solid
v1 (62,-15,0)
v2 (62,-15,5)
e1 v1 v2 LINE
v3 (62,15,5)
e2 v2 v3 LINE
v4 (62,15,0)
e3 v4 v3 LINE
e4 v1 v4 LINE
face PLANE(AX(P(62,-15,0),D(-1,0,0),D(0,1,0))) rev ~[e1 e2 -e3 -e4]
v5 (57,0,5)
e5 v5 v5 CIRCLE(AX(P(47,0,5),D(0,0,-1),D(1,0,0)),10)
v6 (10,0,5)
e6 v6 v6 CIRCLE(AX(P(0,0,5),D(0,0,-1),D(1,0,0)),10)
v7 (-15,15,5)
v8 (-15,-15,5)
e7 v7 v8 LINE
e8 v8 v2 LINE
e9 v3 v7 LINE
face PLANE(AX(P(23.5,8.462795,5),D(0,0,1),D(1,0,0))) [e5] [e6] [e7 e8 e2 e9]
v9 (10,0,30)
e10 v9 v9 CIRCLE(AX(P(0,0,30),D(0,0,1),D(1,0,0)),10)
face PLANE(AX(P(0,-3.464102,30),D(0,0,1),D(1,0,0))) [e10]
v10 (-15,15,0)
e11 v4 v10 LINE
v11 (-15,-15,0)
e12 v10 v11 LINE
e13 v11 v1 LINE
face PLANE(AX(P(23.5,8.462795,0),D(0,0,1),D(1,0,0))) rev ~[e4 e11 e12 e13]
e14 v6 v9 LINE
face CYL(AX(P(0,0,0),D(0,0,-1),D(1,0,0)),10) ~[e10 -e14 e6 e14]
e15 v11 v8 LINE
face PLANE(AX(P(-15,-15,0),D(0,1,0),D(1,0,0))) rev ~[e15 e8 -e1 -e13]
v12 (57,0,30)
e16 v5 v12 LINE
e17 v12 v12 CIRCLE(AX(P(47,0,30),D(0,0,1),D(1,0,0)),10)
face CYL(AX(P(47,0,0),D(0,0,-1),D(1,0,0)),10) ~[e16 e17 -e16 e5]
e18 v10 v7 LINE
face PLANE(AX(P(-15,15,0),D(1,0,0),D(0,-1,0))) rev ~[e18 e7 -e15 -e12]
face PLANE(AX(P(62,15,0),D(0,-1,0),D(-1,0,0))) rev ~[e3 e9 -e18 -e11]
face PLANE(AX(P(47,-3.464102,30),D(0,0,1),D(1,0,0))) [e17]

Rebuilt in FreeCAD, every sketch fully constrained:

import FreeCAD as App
import Part
import Sketcher

V = App.Vector
Q = App.Units.Quantity

doc = App.newDocument("Part")
body = doc.addObject("PartDesign::Body", "Body")

sketch1 = body.newObject("Sketcher::SketchObject", "Sketch")
sketch1.AttachmentSupport = (doc.getObject("XY_Plane"), [""])
sketch1.MapMode = "FlatFace"
sketch1.addGeometry([
    Part.LineSegment(V(62, 15, 0), V(-15, 15, 0)),
    Part.LineSegment(V(-15, 15, 0), V(-15, -15, 0)),
    Part.LineSegment(V(-15, -15, 0), V(62, -15, 0)),
    Part.LineSegment(V(62, -15, 0), V(62, 15, 0)),
    Part.Circle(V(0, 0, 0), V(0, 0, 1), 10),
    Part.Circle(V(47, 0, 0), V(0, 0, 1), 10),
], False)
sketch1.addConstraint([
    Sketcher.Constraint("Coincident", 0, 2, 1, 1),
    Sketcher.Constraint("Coincident", 1, 2, 2, 1),
    Sketcher.Constraint("Coincident", 2, 2, 3, 1),
    Sketcher.Constraint("Coincident", 3, 2, 0, 1),
    Sketcher.Constraint("Horizontal", 0),
    Sketcher.Constraint("Vertical", 1),
    Sketcher.Constraint("Horizontal", 2),
    Sketcher.Constraint("Vertical", 3),
    Sketcher.Constraint("Coincident", 4, 3, -1, 1),
    Sketcher.Constraint("Equal", 4, 5),
    Sketcher.Constraint("PointOnObject", 5, 3, -1),
    Sketcher.Constraint("Diameter", 4, Q("20 mm")),
    Sketcher.Constraint("DistanceX", 0, 2, 0, 1, Q("77 mm")),
    Sketcher.Constraint("DistanceY", 1, 2, 1, 1, Q("30 mm")),
    Sketcher.Constraint("DistanceX", -1, 1, 5, 3, Q("47 mm")),
    Sketcher.Constraint("DistanceX", 0, 2, -1, 1, Q("15 mm")),
    Sketcher.Constraint("DistanceY", -1, 1, 0, 2, Q("15 mm")),
])
pad1 = body.newObject("PartDesign::Pad", "Pad")
pad1.Profile = sketch1
pad1.Length = 5

sketch2 = body.newObject("Sketcher::SketchObject", "Sketch001")
sketch2.AttachmentSupport = (doc.getObject("XY_Plane"), [""])
sketch2.MapMode = "FlatFace"
sketch2.addGeometry([
    Part.Circle(V(0, 0, 0), V(0, 0, 1), 10),
    Part.Circle(V(47, 0, 0), V(0, 0, 1), 10),
], False)
sketch2.addConstraint([
    Sketcher.Constraint("Coincident", 0, 3, -1, 1),
    Sketcher.Constraint("Equal", 0, 1),
    Sketcher.Constraint("PointOnObject", 1, 3, -1),
    Sketcher.Constraint("Diameter", 0, Q("20 mm")),
    Sketcher.Constraint("DistanceX", -1, 1, 1, 3, Q("47 mm")),
])
pad2 = body.newObject("PartDesign::Pad", "Pad001")
pad2.Profile = sketch2
pad2.Length = 30

doc.recompute()
